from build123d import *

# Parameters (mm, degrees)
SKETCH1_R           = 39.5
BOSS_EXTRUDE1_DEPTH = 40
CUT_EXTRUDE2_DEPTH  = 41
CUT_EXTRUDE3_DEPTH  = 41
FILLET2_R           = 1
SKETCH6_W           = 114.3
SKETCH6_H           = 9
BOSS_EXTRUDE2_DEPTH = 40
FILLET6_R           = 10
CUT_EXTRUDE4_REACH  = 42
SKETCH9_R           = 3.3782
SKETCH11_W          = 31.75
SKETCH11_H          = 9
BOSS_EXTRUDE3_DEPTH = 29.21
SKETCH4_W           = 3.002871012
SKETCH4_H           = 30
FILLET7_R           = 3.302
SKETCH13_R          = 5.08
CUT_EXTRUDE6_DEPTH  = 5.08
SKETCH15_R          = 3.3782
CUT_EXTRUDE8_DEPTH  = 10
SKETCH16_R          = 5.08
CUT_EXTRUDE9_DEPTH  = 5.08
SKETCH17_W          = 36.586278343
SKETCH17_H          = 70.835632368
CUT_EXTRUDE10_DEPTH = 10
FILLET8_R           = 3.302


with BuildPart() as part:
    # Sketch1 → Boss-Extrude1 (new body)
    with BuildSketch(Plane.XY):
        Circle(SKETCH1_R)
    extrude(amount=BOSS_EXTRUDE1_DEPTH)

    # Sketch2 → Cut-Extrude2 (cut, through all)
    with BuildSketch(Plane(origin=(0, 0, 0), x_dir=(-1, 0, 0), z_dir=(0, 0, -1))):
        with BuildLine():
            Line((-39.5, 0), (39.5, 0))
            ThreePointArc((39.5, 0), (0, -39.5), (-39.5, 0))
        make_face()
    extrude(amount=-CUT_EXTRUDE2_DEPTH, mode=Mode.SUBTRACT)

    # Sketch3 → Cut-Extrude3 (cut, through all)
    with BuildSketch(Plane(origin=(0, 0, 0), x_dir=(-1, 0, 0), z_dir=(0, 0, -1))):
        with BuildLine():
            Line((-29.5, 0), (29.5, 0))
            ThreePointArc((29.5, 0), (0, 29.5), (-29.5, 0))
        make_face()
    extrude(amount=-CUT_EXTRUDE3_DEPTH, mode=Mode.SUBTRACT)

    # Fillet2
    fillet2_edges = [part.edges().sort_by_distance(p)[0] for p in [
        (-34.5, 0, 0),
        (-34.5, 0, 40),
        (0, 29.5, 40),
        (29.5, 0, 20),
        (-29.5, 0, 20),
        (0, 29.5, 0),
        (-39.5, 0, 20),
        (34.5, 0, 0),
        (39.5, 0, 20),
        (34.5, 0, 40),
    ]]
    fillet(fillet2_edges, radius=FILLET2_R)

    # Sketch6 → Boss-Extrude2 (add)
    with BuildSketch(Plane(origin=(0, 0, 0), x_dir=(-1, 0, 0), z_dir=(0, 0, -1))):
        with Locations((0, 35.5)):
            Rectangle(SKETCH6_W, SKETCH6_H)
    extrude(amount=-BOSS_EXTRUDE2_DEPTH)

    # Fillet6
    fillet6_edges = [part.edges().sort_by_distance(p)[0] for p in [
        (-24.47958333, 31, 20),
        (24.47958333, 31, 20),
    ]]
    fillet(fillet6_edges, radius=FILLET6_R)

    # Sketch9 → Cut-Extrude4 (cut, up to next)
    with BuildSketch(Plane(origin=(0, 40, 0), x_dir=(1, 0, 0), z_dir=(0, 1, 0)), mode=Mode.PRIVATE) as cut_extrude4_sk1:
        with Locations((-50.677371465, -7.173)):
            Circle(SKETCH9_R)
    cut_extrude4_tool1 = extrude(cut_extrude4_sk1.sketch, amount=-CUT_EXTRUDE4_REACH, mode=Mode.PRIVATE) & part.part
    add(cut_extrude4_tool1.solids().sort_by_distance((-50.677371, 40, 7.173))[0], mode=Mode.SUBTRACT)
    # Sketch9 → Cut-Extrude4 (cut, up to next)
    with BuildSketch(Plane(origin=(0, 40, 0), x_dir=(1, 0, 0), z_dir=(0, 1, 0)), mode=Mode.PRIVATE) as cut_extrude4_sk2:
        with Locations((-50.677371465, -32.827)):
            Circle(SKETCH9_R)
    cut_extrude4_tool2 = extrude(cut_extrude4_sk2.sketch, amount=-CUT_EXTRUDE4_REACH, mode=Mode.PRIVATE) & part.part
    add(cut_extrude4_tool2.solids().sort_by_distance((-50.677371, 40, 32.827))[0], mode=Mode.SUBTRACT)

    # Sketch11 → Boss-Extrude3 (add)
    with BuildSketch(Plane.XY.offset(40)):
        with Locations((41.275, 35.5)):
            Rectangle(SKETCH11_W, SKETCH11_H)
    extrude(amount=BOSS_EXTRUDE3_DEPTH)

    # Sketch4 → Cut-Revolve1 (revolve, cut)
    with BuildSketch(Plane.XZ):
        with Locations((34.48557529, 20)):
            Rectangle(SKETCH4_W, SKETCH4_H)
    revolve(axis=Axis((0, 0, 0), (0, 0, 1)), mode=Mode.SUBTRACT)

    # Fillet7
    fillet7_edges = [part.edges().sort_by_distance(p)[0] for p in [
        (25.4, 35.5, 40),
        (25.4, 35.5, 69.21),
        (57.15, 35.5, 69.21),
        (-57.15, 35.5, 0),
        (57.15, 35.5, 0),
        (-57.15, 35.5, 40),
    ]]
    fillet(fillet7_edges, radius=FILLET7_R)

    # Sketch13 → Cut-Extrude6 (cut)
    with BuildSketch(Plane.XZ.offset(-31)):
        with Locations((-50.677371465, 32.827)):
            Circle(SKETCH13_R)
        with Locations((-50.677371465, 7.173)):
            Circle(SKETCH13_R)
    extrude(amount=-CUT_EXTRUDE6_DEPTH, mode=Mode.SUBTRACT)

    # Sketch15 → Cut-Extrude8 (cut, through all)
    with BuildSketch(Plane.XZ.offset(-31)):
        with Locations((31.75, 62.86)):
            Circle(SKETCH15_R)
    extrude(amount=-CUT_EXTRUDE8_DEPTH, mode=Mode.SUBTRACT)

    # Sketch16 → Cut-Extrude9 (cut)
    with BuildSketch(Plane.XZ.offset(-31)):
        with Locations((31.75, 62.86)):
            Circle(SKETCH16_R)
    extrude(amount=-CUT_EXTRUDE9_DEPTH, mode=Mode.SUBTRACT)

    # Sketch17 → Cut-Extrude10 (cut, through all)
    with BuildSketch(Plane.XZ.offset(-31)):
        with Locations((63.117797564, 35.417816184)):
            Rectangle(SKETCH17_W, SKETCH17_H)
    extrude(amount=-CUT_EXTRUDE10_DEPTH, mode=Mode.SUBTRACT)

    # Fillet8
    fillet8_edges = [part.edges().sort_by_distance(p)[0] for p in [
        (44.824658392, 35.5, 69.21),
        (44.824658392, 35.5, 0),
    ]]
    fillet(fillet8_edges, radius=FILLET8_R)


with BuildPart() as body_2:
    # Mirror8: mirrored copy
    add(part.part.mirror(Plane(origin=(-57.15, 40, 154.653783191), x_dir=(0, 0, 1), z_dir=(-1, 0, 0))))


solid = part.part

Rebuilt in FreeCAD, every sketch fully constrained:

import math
import FreeCAD as App
import Part
import Sketcher

V = App.Vector


def edges_at(feature, points):
    """Names of the edges that pass closest to the given points."""
    edges = feature.Shape.Edges
    near = lambda p: min(range(len(edges)), key=lambda i: edges[i].distToShape(Part.Vertex(*p))[0])
    return sorted({f"Edge{near(p) + 1}" for p in points})

doc = App.newDocument("Part")
body = doc.addObject("PartDesign::Body", "Body")

sketch1 = doc.addObject("Sketcher::SketchObject", "Sketch")
body.addObject(sketch1)
sketch1.AttachmentSupport = (doc.XY_Plane, [""])
sketch1.MapMode = "FlatFace"
sketch1.addGeometry(Part.Circle(V(0, 0, 0), V(0, 0, 1), 40), False)
sketch1.addConstraint(Sketcher.Constraint("Coincident", 0, 3, -1, 1))
sketch1.addConstraint(Sketcher.Constraint("Diameter", 0, 79.0))
pad1 = doc.addObject("PartDesign::Pad", "Pad")
body.addObject(pad1)
pad1.Profile = sketch1
pad1.Length = 40

sketch2 = doc.addObject("Sketcher::SketchObject", "Sketch001")
body.addObject(sketch2)
sketch2.AttachmentSupport = (doc.XY_Plane, [""])
sketch2.MapMode = "FlatFace"
sketch2.addGeometry(Part.LineSegment(V(-40, 0, 0), V(40, 0, 0)), False)
sketch2.addGeometry(Part.ArcOfCircle(Part.Circle(V(0, 0, 0), V(0, 0, 1), 40), math.radians(180), math.radians(360)), False)
sketch2.addConstraint(Sketcher.Constraint("Coincident", 0, 1, 1, 1))
sketch2.addConstraint(Sketcher.Constraint("Coincident", 1, 2, 0, 2))
sketch2.addConstraint(Sketcher.Constraint("Horizontal", 0))
sketch2.addConstraint(Sketcher.Constraint("Coincident", 1, 3, -1, 1))
sketch2.addConstraint(Sketcher.Constraint("PointOnObject", 0, 1, -1))
sketch2.addConstraint(Sketcher.Constraint("Radius", 1, 39.5))
pocket1 = doc.addObject("PartDesign::Pocket", "Pocket")
body.addObject(pocket1)
pocket1.Profile = sketch2
pocket1.Type = "ThroughAll"
pocket1.Reversed = True

sketch3 = doc.addObject("Sketcher::SketchObject", "Sketch002")
body.addObject(sketch3)
sketch3.AttachmentSupport = (doc.XY_Plane, [""])
sketch3.MapMode = "FlatFace"
sketch3.addGeometry(Part.LineSegment(V(30, 0, 0), V(-30, 0, 0)), False)
sketch3.addGeometry(Part.ArcOfCircle(Part.Circle(V(0, 0, 0), V(0, 0, 1), 30), math.radians(0), math.radians(180)), False)
sketch3.addConstraint(Sketcher.Constraint("Coincident", 0, 1, 1, 1))
sketch3.addConstraint(Sketcher.Constraint("Coincident", 1, 2, 0, 2))
sketch3.addConstraint(Sketcher.Constraint("Horizontal", 0))
sketch3.addConstraint(Sketcher.Constraint("Coincident", 1, 3, -1, 1))
sketch3.addConstraint(Sketcher.Constraint("PointOnObject", 0, 1, -1))
sketch3.addConstraint(Sketcher.Constraint("Radius", 1, 29.5))
pocket2 = doc.addObject("PartDesign::Pocket", "Pocket001")
body.addObject(pocket2)
pocket2.Profile = sketch3
pocket2.Type = "ThroughAll"
pocket2.Reversed = True
doc.recompute()

fillet = doc.addObject("PartDesign::Fillet", "Fillet")
body.addObject(fillet)
fillet.Base = (pocket2, edges_at(pocket2, [
    (-34.5, 0, 0),
    (-34.5, 0, 40),
    (0, 29.5, 40),
    (29.5, 0, 20),
    (-29.5, 0, 20),
    (0, 29.5, 0),
    (-39.5, 0, 20),
    (34.5, 0, 0),
    (39.5, 0, 20),
    (34.5, 0, 40),
]))
fillet.Radius = 1

sketch4 = doc.addObject("Sketcher::SketchObject", "Sketch003")
body.addObject(sketch4)
sketch4.AttachmentSupport = (doc.XY_Plane, [""])
sketch4.MapMode = "FlatFace"
sketch4.addGeometry(Part.LineSegment(V(57, 40, 0), V(57, 31, 0)), False)
sketch4.addGeometry(Part.LineSegment(V(57, 31, 0), V(-57, 31, 0)), False)
sketch4.addGeometry(Part.LineSegment(V(-57, 31, 0), V(-57, 40, 0)), False)
sketch4.addGeometry(Part.LineSegment(V(-57, 40, 0), V(57, 40, 0)), False)
sketch4.addConstraint(Sketcher.Constraint("Coincident", 0, 2, 1, 1))
sketch4.addConstraint(Sketcher.Constraint("Coincident", 1, 2, 2, 1))
sketch4.addConstraint(Sketcher.Constraint("Coincident", 2, 2, 3, 1))
sketch4.addConstraint(Sketcher.Constraint("Coincident", 3, 2, 0, 1))
sketch4.addConstraint(Sketcher.Constraint("Vertical", 0))
sketch4.addConstraint(Sketcher.Constraint("Horizontal", 1))
sketch4.addConstraint(Sketcher.Constraint("Vertical", 2))
sketch4.addConstraint(Sketcher.Constraint("Horizontal", 3))
sketch4.addConstraint(Sketcher.Constraint("DistanceY", 0, 2, 0, 1, 9.0))
sketch4.addConstraint(Sketcher.Constraint("DistanceX", 1, 2, 1, 1, 114.3))
sketch4.addConstraint(Sketcher.Constraint("DistanceY", -1, 1, 0, 2, 31.0))
sketch4.addConstraint(Sketcher.Constraint("DistanceX", -1, 1, 0, 2, 57.15))
pad2 = doc.addObject("PartDesign::Pad", "Pad001")
body.addObject(pad2)
pad2.Profile = sketch4
pad2.Length = 40
doc.recompute()

fillet2 = doc.addObject("PartDesign::Fillet", "Fillet001")
body.addObject(fillet2)
fillet2.Base = (pad2, edges_at(pad2, [(-24.48, 31, 20), (24.48, 31, 20)]))
fillet2.Radius = 10

sketch5 = doc.addObject("Sketcher::SketchObject", "Sketch004")
body.addObject(sketch5)
sketch5.AttachmentSupport = (doc.XZ_Plane, [""])
sketch5.MapMode = "FlatFace"
sketch5.AttachmentOffset = App.Placement(V(0, 0, -40), App.Rotation())
sketch5.addGeometry(Part.Circle(V(-50.7, 7.2, 0), V(0, 0, 1), 3.4), False)
sketch5.addConstraint(Sketcher.Constraint("Diameter", 0, 6.7564))
sketch5.addConstraint(Sketcher.Constraint("DistanceY", -1, 1, 0, 3, 7.173))
sketch5.addConstraint(Sketcher.Constraint("DistanceX", 0, 3, -1, 1, 50.677371))
pocket3 = doc.addObject("PartDesign::Pocket", "Pocket002")
body.addObject(pocket3)
pocket3.Profile = sketch5
pocket3.Type = "UpToFirst"
pocket3.Reversed = True

sketch6 = doc.addObject("Sketcher::SketchObject", "Sketch005")
body.addObject(sketch6)
sketch6.AttachmentSupport = (doc.XZ_Plane, [""])
sketch6.MapMode = "FlatFace"
sketch6.AttachmentOffset = App.Placement(V(0, 0, -40), App.Rotation())
sketch6.addGeometry(Part.Circle(V(-50.7, 32.8, 0), V(0, 0, 1), 3.4), False)
sketch6.addConstraint(Sketcher.Constraint("Diameter", 0, 6.7564))
sketch6.addConstraint(Sketcher.Constraint("DistanceY", -1, 1, 0, 3, 32.827))
sketch6.addConstraint(Sketcher.Constraint("DistanceX", 0, 3, -1, 1, 50.677371))
pocket4 = doc.addObject("PartDesign::Pocket", "Pocket003")
body.addObject(pocket4)
pocket4.Profile = sketch6
pocket4.Type = "UpToFirst"
pocket4.Reversed = True

sketch7 = doc.addObject("Sketcher::SketchObject", "Sketch006")
body.addObject(sketch7)
sketch7.AttachmentSupport = (doc.XY_Plane, [""])
sketch7.MapMode = "FlatFace"
sketch7.AttachmentOffset = App.Placement(V(0, 0, 40), App.Rotation())
sketch7.addGeometry(Part.LineSegment(V(25, 40, 0), V(25, 31, 0)), False)
sketch7.addGeometry(Part.LineSegment(V(25, 31, 0), V(57, 31, 0)), False)
sketch7.addGeometry(Part.LineSegment(V(57, 31, 0), V(57, 40, 0)), False)
sketch7.addGeometry(Part.LineSegment(V(57, 40, 0), V(25, 40, 0)), False)
sketch7.addConstraint(Sketcher.Constraint("Coincident", 0, 2, 1, 1))
sketch7.addConstraint(Sketcher.Constraint("Coincident", 1, 2, 2, 1))
sketch7.addConstraint(Sketcher.Constraint("Coincident", 2, 2, 3, 1))
sketch7.addConstraint(Sketcher.Constraint("Coincident", 3, 2, 0, 1))
sketch7.addConstraint(Sketcher.Constraint("Vertical", 0))
sketch7.addConstraint(Sketcher.Constraint("Horizontal", 1))
sketch7.addConstraint(Sketcher.Constraint("Vertical", 2))
sketch7.addConstraint(Sketcher.Constraint("Horizontal", 3))
sketch7.addConstraint(Sketcher.Constraint("DistanceY", 0, 2, 0, 1, 9.0))
sketch7.addConstraint(Sketcher.Constraint("DistanceY", -1, 1, 0, 2, 31.0))
sketch7.addConstraint(Sketcher.Constraint("DistanceX", 1, 1, 1, 2, 31.75))
sketch7.addConstraint(Sketcher.Constraint("DistanceX", -1, 1, 0, 2, 25.4))
pad3 = doc.addObject("PartDesign::Pad", "Pad002")
body.addObject(pad3)
pad3.Profile = sketch7
pad3.Length = 29.21

sketch8 = doc.addObject("Sketcher::SketchObject", "Sketch007")
body.addObject(sketch8)
sketch8.AttachmentSupport = (doc.XZ_Plane, [""])
sketch8.MapMode = "FlatFace"
sketch8.addGeometry(Part.LineSegment(V(33, 35, 0), V(33, 5, 0)), False)
sketch8.addGeometry(Part.LineSegment(V(33, 5, 0), V(36, 5, 0)), False)
sketch8.addGeometry(Part.LineSegment(V(36, 5, 0), V(36, 35, 0)), False)
sketch8.addGeometry(Part.LineSegment(V(36, 35, 0), V(33, 35, 0)), False)
sketch8.addConstraint(Sketcher.Constraint("Coincident", 0, 2, 1, 1))
sketch8.addConstraint(Sketcher.Constraint("Coincident", 1, 2, 2, 1))
sketch8.addConstraint(Sketcher.Constraint("Coincident", 2, 2, 3, 1))
sketch8.addConstraint(Sketcher.Constraint("Coincident", 3, 2, 0, 1))
sketch8.addConstraint(Sketcher.Constraint("Vertical", 0))
sketch8.addConstraint(Sketcher.Constraint("Horizontal", 1))
sketch8.addConstraint(Sketcher.Constraint("Vertical", 2))
sketch8.addConstraint(Sketcher.Constraint("Horizontal", 3))
sketch8.addConstraint(Sketcher.Constraint("DistanceY", 0, 2, 0, 1, 30.0))
sketch8.addConstraint(Sketcher.Constraint("DistanceY", -1, 1, 0, 2, 5.0))
sketch8.addConstraint(Sketcher.Constraint("DistanceX", 1, 1, 1, 2, 3.002871))
sketch8.addConstraint(Sketcher.Constraint("DistanceX", -1, 1, 0, 2, 32.98414))
groove = doc.addObject("PartDesign::Groove", "Groove")
body.addObject(groove)
groove.Profile = sketch8
groove.ReferenceAxis = (sketch8, ["V_Axis"])
groove.Angle = 360
doc.recompute()

fillet3 = doc.addObject("PartDesign::Fillet", "Fillet002")
body.addObject(fillet3)
fillet3.Base = (groove, edges_at(groove, [
    (25.4, 35.5, 40),
    (25.4, 35.5, 69.21),
    (57.15, 35.5, 69.21),
    (-57.15, 35.5, 0),
    (57.15, 35.5, 0),
    (-57.15, 35.5, 40),
]))
fillet3.Radius = 3.302

sketch9 = doc.addObject("Sketcher::SketchObject", "Sketch008")
body.addObject(sketch9)
sketch9.AttachmentSupport = (doc.XZ_Plane, [""])
sketch9.MapMode = "FlatFace"
sketch9.AttachmentOffset = App.Placement(V(0, 0, -31), App.Rotation())
sketch9.addGeometry(Part.Circle(V(-51, 33, 0), V(0, 0, 1), 5), False)
sketch9.addGeometry(Part.Circle(V(-51, 7, 0), V(0, 0, 1), 5), False)
sketch9.addConstraint(Sketcher.Constraint("Equal", 0, 1))
sketch9.addConstraint(Sketcher.Constraint("Vertical", 0, 3, 1, 3))
sketch9.addConstraint(Sketcher.Constraint("Diameter", 0, 10.16))
sketch9.addConstraint(Sketcher.Constraint("DistanceY", -1, 1, 0, 3, 32.827))
sketch9.addConstraint(Sketcher.Constraint("DistanceY", -1, 1, 1, 3, 7.173))
sketch9.addConstraint(Sketcher.Constraint("DistanceX", 0, 3, -1, 1, 50.677371))
pocket5 = doc.addObject("PartDesign::Pocket", "Pocket004")
body.addObject(pocket5)
pocket5.Profile = sketch9
pocket5.Length = 5.08

sketch10 = doc.addObject("Sketcher::SketchObject", "Sketch009")
body.addObject(sketch10)
sketch10.AttachmentSupport = (doc.XZ_Plane, [""])
sketch10.MapMode = "FlatFace"
sketch10.AttachmentOffset = App.Placement(V(0, 0, -31), App.Rotation())
sketch10.addGeometry(Part.Circle(V(31.8, 62.9, 0), V(0, 0, 1), 3.4), False)
sketch10.addConstraint(Sketcher.Constraint("Diameter", 0, 6.7564))
sketch10.addConstraint(Sketcher.Constraint("DistanceX", -1, 1, 0, 3, 31.75))
sketch10.addConstraint(Sketcher.Constraint("DistanceY", -1, 1, 0, 3, 62.86))
pocket6 = doc.addObject("PartDesign::Pocket", "Pocket005")
body.addObject(pocket6)
pocket6.Profile = sketch10
pocket6.Type = "ThroughAll"

sketch11 = doc.addObject("Sketcher::SketchObject", "Sketch010")
body.addObject(sketch11)
sketch11.AttachmentSupport = (doc.XZ_Plane, [""])
sketch11.MapMode = "FlatFace"
sketch11.AttachmentOffset = App.Placement(V(0, 0, -31), App.Rotation())
sketch11.addGeometry(Part.Circle(V(32, 63, 0), V(0, 0, 1), 5), False)
sketch11.addConstraint(Sketcher.Constraint("Diameter", 0, 10.16))
sketch11.addConstraint(Sketcher.Constraint("DistanceX", -1, 1, 0, 3, 31.75))
sketch11.addConstraint(Sketcher.Constraint("DistanceY", -1, 1, 0, 3, 62.86))
pocket7 = doc.addObject("PartDesign::Pocket", "Pocket006")
body.addObject(pocket7)
pocket7.Profile = sketch11
pocket7.Length = 5.08

sketch12 = doc.addObject("Sketcher::SketchObject", "Sketch011")
body.addObject(sketch12)
sketch12.AttachmentSupport = (doc.XZ_Plane, [""])
sketch12.MapMode = "FlatFace"
sketch12.AttachmentOffset = App.Placement(V(0, 0, -31), App.Rotation())
sketch12.addGeometry(Part.LineSegment(V(45, 71, 0), V(45, 0, 0)), False)
sketch12.addGeometry(Part.LineSegment(V(45, 0, 0), V(81, 0, 0)), False)
sketch12.addGeometry(Part.LineSegment(V(81, 0, 0), V(81, 71, 0)), False)
sketch12.addGeometry(Part.LineSegment(V(81, 71, 0), V(45, 71, 0)), False)
sketch12.addConstraint(Sketcher.Constraint("Coincident", 0, 2, 1, 1))
sketch12.addConstraint(Sketcher.Constraint("Coincident", 1, 2, 2, 1))
sketch12.addConstraint(Sketcher.Constraint("Coincident", 2, 2, 3, 1))
sketch12.addConstraint(Sketcher.Constraint("Coincident", 3, 2, 0, 1))
sketch12.addConstraint(Sketcher.Constraint("Vertical", 0))
sketch12.addConstraint(Sketcher.Constraint("Horizontal", 1))
sketch12.addConstraint(Sketcher.Constraint("Vertical", 2))
sketch12.addConstraint(Sketcher.Constraint("Horizontal", 3))
sketch12.addConstraint(Sketcher.Constraint("PointOnObject", 0, 2, -1))
sketch12.addConstraint(Sketcher.Constraint("DistanceX", 1, 1, 1, 2, 36.586278))
sketch12.addConstraint(Sketcher.Constraint("DistanceY", 0, 2, 0, 1, 70.835632))
sketch12.addConstraint(Sketcher.Constraint("DistanceX", -1, 1, 0, 2, 44.824658))
pocket8 = doc.addObject("PartDesign::Pocket", "Pocket007")
body.addObject(pocket8)
pocket8.Profile = sketch12
pocket8.Type = "ThroughAll"
doc.recompute()

fillet4 = doc.addObject("PartDesign::Fillet", "Fillet003")
body.addObject(fillet4)
fillet4.Base = (pocket8, edges_at(pocket8, [(44.825, 35.5, 69.21), (44.825, 35.5, 0)]))
fillet4.Radius = 3.302
body2 = doc.addObject("PartDesign::Body", "Body001")
doc.recompute()

mirroring = doc.addObject("Part::Mirroring", "Mirroring")
mirroring.Source = body
mirroring.Base = V(-57.15, 40, 154.653783)
mirroring.Normal = V(-1, 0, 0)
body2.BaseFeature = mirroring
doc.recompute()
body2.Visibility = False
mirroring.Visibility = False

doc.recompute()
